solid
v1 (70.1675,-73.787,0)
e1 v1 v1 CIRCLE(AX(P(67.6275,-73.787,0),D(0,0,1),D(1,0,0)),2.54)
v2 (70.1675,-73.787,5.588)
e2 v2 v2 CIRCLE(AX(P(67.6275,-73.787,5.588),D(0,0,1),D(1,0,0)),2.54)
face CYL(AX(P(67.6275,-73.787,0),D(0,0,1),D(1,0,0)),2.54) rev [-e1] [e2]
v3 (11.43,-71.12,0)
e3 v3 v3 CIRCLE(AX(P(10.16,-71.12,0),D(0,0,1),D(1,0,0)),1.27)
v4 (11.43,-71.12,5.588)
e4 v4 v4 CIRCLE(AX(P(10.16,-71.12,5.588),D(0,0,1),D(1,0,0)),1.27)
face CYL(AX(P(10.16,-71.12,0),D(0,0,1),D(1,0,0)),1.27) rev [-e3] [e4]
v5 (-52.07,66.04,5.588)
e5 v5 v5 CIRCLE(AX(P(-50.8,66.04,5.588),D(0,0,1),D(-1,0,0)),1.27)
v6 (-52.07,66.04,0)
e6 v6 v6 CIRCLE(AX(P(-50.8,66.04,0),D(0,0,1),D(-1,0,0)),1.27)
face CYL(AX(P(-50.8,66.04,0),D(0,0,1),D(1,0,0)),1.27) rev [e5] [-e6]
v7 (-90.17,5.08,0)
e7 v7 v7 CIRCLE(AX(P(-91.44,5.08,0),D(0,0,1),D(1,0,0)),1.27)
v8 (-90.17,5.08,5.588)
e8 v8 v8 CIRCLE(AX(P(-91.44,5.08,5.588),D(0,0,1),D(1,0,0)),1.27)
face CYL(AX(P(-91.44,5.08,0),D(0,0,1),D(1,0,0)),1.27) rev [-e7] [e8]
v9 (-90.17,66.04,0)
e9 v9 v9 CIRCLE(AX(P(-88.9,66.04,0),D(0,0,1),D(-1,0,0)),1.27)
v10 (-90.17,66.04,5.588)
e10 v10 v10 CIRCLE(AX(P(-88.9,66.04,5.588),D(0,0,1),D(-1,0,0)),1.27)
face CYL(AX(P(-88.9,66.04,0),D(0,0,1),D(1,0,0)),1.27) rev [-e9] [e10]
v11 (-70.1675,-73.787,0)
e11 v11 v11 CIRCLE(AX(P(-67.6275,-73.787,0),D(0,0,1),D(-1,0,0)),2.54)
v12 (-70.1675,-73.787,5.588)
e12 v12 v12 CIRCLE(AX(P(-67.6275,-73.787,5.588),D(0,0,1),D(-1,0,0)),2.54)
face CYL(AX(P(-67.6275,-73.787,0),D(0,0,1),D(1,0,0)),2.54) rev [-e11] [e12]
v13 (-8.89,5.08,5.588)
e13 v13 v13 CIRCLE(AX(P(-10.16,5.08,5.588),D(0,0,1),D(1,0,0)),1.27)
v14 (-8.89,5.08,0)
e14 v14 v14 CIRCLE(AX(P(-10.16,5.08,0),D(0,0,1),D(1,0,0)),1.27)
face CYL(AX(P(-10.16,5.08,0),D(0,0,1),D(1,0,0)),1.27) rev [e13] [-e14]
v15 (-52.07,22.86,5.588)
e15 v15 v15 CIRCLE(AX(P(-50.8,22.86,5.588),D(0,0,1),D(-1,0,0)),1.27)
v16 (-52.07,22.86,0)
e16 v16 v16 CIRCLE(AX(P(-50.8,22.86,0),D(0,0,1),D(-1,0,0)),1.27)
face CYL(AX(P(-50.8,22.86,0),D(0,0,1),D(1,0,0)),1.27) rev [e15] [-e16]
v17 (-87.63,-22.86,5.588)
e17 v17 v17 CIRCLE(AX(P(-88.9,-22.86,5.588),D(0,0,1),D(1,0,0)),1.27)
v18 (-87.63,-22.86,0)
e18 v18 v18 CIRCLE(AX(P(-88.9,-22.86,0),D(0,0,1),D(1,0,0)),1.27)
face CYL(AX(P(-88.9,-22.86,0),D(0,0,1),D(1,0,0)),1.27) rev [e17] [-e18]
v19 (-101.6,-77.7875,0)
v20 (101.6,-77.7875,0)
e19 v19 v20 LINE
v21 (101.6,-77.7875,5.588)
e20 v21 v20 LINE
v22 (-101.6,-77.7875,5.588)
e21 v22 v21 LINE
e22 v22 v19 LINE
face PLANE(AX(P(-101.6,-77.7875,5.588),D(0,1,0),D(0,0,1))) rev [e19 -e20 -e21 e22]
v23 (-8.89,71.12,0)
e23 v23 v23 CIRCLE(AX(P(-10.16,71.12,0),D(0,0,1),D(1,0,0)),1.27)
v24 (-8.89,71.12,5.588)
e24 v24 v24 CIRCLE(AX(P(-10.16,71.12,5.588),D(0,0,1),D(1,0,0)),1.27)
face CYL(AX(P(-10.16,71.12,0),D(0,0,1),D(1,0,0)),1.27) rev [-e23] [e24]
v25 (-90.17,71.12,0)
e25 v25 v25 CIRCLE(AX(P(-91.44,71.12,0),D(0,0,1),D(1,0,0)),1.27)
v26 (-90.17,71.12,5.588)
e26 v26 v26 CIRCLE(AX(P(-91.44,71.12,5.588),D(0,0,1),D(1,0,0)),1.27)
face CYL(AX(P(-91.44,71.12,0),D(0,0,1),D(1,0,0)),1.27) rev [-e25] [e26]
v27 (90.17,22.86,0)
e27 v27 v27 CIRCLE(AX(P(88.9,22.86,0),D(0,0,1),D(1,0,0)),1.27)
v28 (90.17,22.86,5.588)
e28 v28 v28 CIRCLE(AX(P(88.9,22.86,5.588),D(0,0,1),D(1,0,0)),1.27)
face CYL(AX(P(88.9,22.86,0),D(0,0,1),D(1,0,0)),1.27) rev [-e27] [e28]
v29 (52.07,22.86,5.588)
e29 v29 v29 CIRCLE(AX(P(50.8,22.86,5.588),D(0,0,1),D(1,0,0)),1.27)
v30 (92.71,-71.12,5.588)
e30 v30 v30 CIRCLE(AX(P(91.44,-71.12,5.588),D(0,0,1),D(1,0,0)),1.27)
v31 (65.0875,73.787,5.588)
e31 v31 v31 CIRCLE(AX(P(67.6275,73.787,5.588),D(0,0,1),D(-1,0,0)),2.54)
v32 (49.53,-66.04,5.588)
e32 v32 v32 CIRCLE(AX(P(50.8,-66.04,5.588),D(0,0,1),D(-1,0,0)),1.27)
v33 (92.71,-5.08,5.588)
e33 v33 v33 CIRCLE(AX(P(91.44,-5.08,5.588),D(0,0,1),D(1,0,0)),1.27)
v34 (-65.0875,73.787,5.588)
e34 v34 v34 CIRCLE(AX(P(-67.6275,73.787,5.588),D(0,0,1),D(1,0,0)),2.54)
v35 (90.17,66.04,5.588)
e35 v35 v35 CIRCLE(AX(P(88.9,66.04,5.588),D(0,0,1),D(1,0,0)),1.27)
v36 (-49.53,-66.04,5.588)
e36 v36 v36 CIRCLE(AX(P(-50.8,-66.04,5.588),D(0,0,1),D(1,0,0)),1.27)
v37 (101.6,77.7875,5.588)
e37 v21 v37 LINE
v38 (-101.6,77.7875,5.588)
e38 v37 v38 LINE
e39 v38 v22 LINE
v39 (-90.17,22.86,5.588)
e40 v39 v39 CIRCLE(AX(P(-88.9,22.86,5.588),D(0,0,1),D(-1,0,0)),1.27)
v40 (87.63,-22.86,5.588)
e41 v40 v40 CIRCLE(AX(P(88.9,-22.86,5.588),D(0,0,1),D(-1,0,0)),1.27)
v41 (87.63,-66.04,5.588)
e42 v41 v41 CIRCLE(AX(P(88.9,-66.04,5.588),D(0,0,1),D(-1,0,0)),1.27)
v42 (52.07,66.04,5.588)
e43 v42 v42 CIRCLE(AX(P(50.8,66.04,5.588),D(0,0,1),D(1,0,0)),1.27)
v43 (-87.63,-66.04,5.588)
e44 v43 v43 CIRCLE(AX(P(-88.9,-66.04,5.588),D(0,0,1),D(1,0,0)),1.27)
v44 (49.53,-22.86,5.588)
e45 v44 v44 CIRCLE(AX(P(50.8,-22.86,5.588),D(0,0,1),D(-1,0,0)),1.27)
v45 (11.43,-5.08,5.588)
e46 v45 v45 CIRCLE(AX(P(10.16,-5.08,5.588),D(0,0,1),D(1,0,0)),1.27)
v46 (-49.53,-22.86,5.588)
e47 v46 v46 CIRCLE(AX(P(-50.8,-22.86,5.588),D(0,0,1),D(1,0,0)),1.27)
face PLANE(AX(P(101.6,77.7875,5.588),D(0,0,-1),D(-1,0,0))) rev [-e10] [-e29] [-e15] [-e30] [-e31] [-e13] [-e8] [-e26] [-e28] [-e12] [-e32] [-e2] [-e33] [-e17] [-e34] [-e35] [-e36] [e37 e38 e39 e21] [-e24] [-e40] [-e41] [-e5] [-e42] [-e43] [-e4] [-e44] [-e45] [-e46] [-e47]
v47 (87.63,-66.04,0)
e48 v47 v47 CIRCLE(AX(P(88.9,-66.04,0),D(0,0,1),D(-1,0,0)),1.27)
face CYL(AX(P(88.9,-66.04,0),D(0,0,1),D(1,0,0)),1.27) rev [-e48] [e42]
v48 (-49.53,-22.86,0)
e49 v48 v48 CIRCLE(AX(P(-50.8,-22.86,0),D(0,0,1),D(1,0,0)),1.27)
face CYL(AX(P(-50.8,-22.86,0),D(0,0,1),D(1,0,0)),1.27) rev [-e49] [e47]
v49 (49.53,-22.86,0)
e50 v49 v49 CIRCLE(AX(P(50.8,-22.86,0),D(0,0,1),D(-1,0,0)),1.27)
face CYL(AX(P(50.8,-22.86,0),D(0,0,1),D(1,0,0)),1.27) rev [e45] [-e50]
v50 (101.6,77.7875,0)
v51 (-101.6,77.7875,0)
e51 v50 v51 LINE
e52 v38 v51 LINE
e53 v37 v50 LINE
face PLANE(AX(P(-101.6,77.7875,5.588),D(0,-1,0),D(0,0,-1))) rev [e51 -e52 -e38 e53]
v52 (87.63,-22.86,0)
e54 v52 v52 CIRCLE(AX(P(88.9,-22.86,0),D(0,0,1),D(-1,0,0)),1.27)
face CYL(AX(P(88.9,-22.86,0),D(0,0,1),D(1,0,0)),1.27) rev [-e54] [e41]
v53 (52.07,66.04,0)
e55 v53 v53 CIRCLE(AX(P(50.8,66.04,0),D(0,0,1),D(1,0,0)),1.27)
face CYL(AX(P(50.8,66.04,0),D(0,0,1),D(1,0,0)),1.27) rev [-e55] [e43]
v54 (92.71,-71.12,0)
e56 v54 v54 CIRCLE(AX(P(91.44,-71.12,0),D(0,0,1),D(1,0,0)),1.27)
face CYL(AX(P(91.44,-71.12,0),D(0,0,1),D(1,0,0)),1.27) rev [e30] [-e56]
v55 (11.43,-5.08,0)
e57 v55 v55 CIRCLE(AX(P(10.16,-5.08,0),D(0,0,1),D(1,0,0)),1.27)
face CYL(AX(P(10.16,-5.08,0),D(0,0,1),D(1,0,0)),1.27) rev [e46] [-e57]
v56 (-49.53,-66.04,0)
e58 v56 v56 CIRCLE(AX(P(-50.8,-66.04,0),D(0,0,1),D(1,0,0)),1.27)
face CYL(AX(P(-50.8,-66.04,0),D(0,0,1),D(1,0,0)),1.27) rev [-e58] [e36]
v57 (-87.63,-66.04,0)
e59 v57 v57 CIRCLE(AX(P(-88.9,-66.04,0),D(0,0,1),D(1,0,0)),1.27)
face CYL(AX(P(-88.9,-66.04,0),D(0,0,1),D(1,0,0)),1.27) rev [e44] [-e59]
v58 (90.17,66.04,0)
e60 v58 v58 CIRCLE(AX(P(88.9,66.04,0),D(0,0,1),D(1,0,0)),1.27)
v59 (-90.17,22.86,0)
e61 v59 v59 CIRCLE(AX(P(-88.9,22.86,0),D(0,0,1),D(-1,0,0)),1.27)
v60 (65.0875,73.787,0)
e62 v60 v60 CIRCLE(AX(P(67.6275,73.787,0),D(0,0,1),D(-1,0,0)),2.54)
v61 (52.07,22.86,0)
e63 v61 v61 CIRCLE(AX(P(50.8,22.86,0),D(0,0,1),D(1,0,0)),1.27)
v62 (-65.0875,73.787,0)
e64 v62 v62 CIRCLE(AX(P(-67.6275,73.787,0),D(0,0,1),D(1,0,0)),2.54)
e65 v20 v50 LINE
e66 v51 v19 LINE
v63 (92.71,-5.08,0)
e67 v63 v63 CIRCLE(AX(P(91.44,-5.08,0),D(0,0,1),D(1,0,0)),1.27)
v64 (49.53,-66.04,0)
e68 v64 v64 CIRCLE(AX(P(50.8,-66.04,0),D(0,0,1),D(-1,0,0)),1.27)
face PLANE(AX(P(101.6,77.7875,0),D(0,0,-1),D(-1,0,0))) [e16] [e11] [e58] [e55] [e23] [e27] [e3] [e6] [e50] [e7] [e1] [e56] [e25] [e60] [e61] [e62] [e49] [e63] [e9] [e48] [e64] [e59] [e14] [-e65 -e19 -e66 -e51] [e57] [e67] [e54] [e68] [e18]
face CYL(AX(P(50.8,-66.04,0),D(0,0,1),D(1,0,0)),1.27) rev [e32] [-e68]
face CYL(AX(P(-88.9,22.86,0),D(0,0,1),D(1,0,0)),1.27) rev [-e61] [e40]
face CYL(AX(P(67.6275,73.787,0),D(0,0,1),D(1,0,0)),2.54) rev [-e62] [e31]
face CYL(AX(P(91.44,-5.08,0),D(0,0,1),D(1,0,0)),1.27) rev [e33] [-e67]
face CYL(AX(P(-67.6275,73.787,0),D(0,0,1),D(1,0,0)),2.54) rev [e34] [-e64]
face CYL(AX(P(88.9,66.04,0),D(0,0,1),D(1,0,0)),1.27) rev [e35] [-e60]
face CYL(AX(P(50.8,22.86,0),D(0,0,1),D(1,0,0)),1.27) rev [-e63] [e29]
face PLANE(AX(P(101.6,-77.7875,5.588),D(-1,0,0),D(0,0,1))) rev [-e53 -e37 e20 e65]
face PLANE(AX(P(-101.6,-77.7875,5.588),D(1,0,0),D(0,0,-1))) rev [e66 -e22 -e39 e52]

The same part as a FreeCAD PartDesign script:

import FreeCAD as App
import Part
import Sketcher
from FreeCAD import Vector
Q = App.Units.Quantity


def add_polygon(sketch, points):
    """Adds a closed chain of lines whose ends are joined by coincident constraints."""
    first, n = sketch.GeometryCount, len(points)
    for a, b in zip(points, points[1:] + points[:1]):
        sketch.addGeometry(Part.LineSegment(App.Vector(*a, 0), App.Vector(*b, 0)), False)
    for i in range(n):
        sketch.addConstraint(Sketcher.Constraint("Coincident", first + i, 2, first + (i + 1) % n, 1))

doc = App.newDocument("Part")
body = doc.addObject("PartDesign::Body", "Body")

sketch1 = body.newObject("Sketcher::SketchObject", "Sketch")
sketch1.AttachmentSupport = (doc.getObject("XY_Plane"), [""])
sketch1.MapMode = "FlatFace"
add_polygon(sketch1, [(-102, 78), (-102, -78), (102, -78), (102, 78)])
sketch1.addConstraint(Sketcher.Constraint("Vertical", 0))
sketch1.addConstraint(Sketcher.Constraint("Horizontal", 1))
sketch1.addConstraint(Sketcher.Constraint("Vertical", 2))
sketch1.addConstraint(Sketcher.Constraint("Horizontal", 3))
sketch1.addConstraint(Sketcher.Constraint("Symmetric", 0, 2, 2, 2, -1, 1))
sketch1.addConstraint(Sketcher.Constraint("DistanceX", 1, 1, 1, 2, Q("8 in")))
sketch1.addConstraint(Sketcher.Constraint("DistanceY", 0, 2, 0, 1, Q("6.125 in")))
pad1 = body.newObject("PartDesign::Pad", "Pad")
pad1.Profile = sketch1
pad1.Length = Q("0.22 in")

sketch2 = body.newObject("Sketcher::SketchObject", "Sketch001")
sketch2.AttachmentSupport = (doc.getObject("XY_Plane"), [""])
sketch2.MapMode = "FlatFace"
sketch2.AttachmentOffset = App.Placement(Vector(0, 0, 0.22 * 25.4), App.Rotation())
sketch2.addGeometry(Part.Circle(Vector(-67.6, 73.8, 0), Vector(0, 0, 1), 2.5), False)
sketch2.addGeometry(Part.Circle(Vector(67.6, 73.8, 0), Vector(0, 0, 1), 2.5), False)
sketch2.addGeometry(Part.Circle(Vector(67.6, -73.8, 0), Vector(0, 0, 1), 2.5), False)
sketch2.addGeometry(Part.Circle(Vector(-67.6, -73.8, 0), Vector(0, 0, 1), 2.5), False)
sketch2.addConstraint(Sketcher.Constraint("Equal", 0, 1))
sketch2.addConstraint(Sketcher.Constraint("Equal", 1, 2))
sketch2.addConstraint(Sketcher.Constraint("Equal", 2, 3))
sketch2.addConstraint(Sketcher.Constraint("Symmetric", 0, 3, 2, 3, -1, 1))
sketch2.addConstraint(Sketcher.Constraint("Symmetric", 1, 3, 3, 3, -1, 1))
sketch2.addConstraint(Sketcher.Constraint("Symmetric", 0, 3, 1, 3, -2))
sketch2.addConstraint(Sketcher.Constraint("Diameter", 0, Q("0.2 in")))
sketch2.addConstraint(Sketcher.Constraint("DistanceY", 2, 3, 1, 3, Q("5.81 in")))
sketch2.addConstraint(Sketcher.Constraint("DistanceX", 0, 3, 1, 3, Q("5.325 in")))
pocket1 = body.newObject("PartDesign::Pocket", "Pocket")
pocket1.Profile = sketch2
pocket1.Type = "ThroughAll"

sketch3 = body.newObject("Sketcher::SketchObject", "Sketch002")
sketch3.AttachmentSupport = (doc.getObject("XY_Plane"), [""])
sketch3.MapMode = "FlatFace"
sketch3.AttachmentOffset = App.Placement(Vector(0, 0, 0.22 * 25.4), App.Rotation())
sketch3.addGeometry(Part.Circle(Vector(-91.4, 71.1, 0), Vector(0, 0, 1), 1.3), False)
sketch3.addGeometry(Part.Circle(Vector(-10.2, 71.1, 0), Vector(0, 0, 1), 1.3), False)
sketch3.addGeometry(Part.Circle(Vector(-10.2, 5.1, 0), Vector(0, 0, 1), 1.3), False)
sketch3.addGeometry(Part.Circle(Vector(-91.4, 5.1, 0), Vector(0, 0, 1), 1.3), False)
sketch3.addGeometry(Part.Circle(Vector(10.2, -5.1, 0), Vector(0, 0, 1), 1.3), False)
sketch3.addGeometry(Part.Circle(Vector(91.4, -71.1, 0), Vector(0, 0, 1), 1.3), False)
sketch3.addGeometry(Part.Circle(Vector(91.4, -5.1, 0), Vector(0, 0, 1), 1.3), False)
sketch3.addGeometry(Part.Circle(Vector(10.2, -71.1, 0), Vector(0, 0, 1), 1.3), False)
sketch3.addConstraint(Sketcher.Constraint("Equal", 0, 1))
sketch3.addConstraint(Sketcher.Constraint("Equal", 1, 2))
sketch3.addConstraint(Sketcher.Constraint("Equal", 2, 3))
sketch3.addConstraint(Sketcher.Constraint("Equal", 3, 4))
sketch3.addConstraint(Sketcher.Constraint("Equal", 4, 5))
sketch3.addConstraint(Sketcher.Constraint("Equal", 5, 6))
sketch3.addConstraint(Sketcher.Constraint("Equal", 6, 7))
sketch3.addConstraint(Sketcher.Constraint("Symmetric", 2, 3, 4, 3, -1, 1))
sketch3.addConstraint(Sketcher.Constraint("Symmetric", 0, 3, 5, 3, -1, 1))
sketch3.addConstraint(Sketcher.Constraint("Symmetric", 3, 3, 6, 3, -1, 1))
sketch3.addConstraint(Sketcher.Constraint("Symmetric", 1, 3, 7, 3, -1, 1))
sketch3.addConstraint(Sketcher.Constraint("Horizontal", 0, 3, 1, 3))
sketch3.addConstraint(Sketcher.Constraint("Horizontal", 2, 3, 3, 3))
sketch3.addConstraint(Sketcher.Constraint("Vertical", 1, 3, 2, 3))
sketch3.addConstraint(Sketcher.Constraint("Vertical", 0, 3, 3, 3))
sketch3.addConstraint(Sketcher.Constraint("Diameter", 0, Q("0.1 in")))
sketch3.addConstraint(Sketcher.Constraint("DistanceY", 4, 3, 1, 3, Q("3 in")))
sketch3.addConstraint(Sketcher.Constraint("DistanceX", 3, 3, 4, 3, Q("4 in")))
sketch3.addConstraint(Sketcher.Constraint("DistanceX", 0, 3, -1, 1, Q("3.6 in")))
sketch3.addConstraint(Sketcher.Constraint("DistanceY", -1, 1, 0, 3, Q("2.8 in")))
pocket2 = body.newObject("PartDesign::Pocket", "Pocket001")
pocket2.Profile = sketch3
pocket2.Type = "ThroughAll"

sketch4 = body.newObject("Sketcher::SketchObject", "Sketch003")
sketch4.AttachmentSupport = (doc.getObject("XY_Plane"), [""])
sketch4.MapMode = "FlatFace"
sketch4.AttachmentOffset = App.Placement(Vector(0, 0, 0.22 * 25.4), App.Rotation())
sketch4.addGeometry(Part.Circle(Vector(50.8, 22.9, 0), Vector(0, 0, 1), 1.3), False)
sketch4.addGeometry(Part.Circle(Vector(50.8, 66, 0), Vector(0, 0, 1), 1.3), False)
sketch4.addGeometry(Part.Circle(Vector(88.9, 66, 0), Vector(0, 0, 1), 1.3), False)
sketch4.addGeometry(Part.Circle(Vector(-88.9, 22.9, 0), Vector(0, 0, 1), 1.3), False)
sketch4.addGeometry(Part.Circle(Vector(-88.9, 66, 0), Vector(0, 0, 1), 1.3), False)
sketch4.addGeometry(Part.Circle(Vector(-50.8, 66, 0), Vector(0, 0, 1), 1.3), False)
sketch4.addGeometry(Part.Circle(Vector(-50.8, 22.9, 0), Vector(0, 0, 1), 1.3), False)
sketch4.addGeometry(Part.Circle(Vector(88.9, -22.9, 0), Vector(0, 0, 1), 1.3), False)
sketch4.addGeometry(Part.Circle(Vector(-50.8, -22.9, 0), Vector(0, 0, 1), 1.3), False)
sketch4.addGeometry(Part.Circle(Vector(-50.8, -66, 0), Vector(0, 0, 1), 1.3), False)
sketch4.addGeometry(Part.Circle(Vector(-88.9, -66, 0), Vector(0, 0, 1), 1.3), False)
sketch4.addGeometry(Part.Circle(Vector(-88.9, -22.9, 0), Vector(0, 0, 1), 1.3), False)
sketch4.addGeometry(Part.Circle(Vector(88.9, 22.9, 0), Vector(0, 0, 1), 1.3), False)
sketch4.addGeometry(Part.Circle(Vector(88.9, -66, 0), Vector(0, 0, 1), 1.3), False)
sketch4.addGeometry(Part.Circle(Vector(50.8, -66, 0), Vector(0, 0, 1), 1.3), False)
sketch4.addGeometry(Part.Circle(Vector(50.8, -22.9, 0), Vector(0, 0, 1), 1.3), False)
sketch4.addConstraint(Sketcher.Constraint("Equal", 0, 1))
sketch4.addConstraint(Sketcher.Constraint("Equal", 1, 2))
sketch4.addConstraint(Sketcher.Constraint("Equal", 2, 3))
sketch4.addConstraint(Sketcher.Constraint("Equal", 3, 4))
sketch4.addConstraint(Sketcher.Constraint("Equal", 4, 5))
sketch4.addConstraint(Sketcher.Constraint("Equal", 5, 6))
sketch4.addConstraint(Sketcher.Constraint("Equal", 6, 7))
sketch4.addConstraint(Sketcher.Constraint("Equal", 7, 8))
sketch4.addConstraint(Sketcher.Constraint("Equal", 8, 9))
sketch4.addConstraint(Sketcher.Constraint("Equal", 9, 10))
sketch4.addConstraint(Sketcher.Constraint("Equal", 10, 11))
sketch4.addConstraint(Sketcher.Constraint("Equal", 11, 12))
sketch4.addConstraint(Sketcher.Constraint("Equal", 12, 13))
sketch4.addConstraint(Sketcher.Constraint("Equal", 13, 14))
sketch4.addConstraint(Sketcher.Constraint("Equal", 14, 15))
sketch4.addConstraint(Sketcher.Constraint("Symmetric", 3, 3, 7, 3, -1, 1))
sketch4.addConstraint(Sketcher.Constraint("Symmetric", 0, 3, 8, 3, -1, 1))
sketch4.addConstraint(Sketcher.Constraint("Symmetric", 1, 3, 9, 3, -1, 1))
sketch4.addConstraint(Sketcher.Constraint("Symmetric", 2, 3, 10, 3, -1, 1))
sketch4.addConstraint(Sketcher.Constraint("Symmetric", 11, 3, 12, 3, -1, 1))
sketch4.addConstraint(Sketcher.Constraint("Symmetric", 4, 3, 13, 3, -1, 1))
sketch4.addConstraint(Sketcher.Constraint("Symmetric", 5, 3, 14, 3, -1, 1))
sketch4.addConstraint(Sketcher.Constraint("Symmetric", 6, 3, 15, 3, -1, 1))
sketch4.addConstraint(Sketcher.Constraint("Symmetric", 2, 3, 4, 3, -2))
sketch4.addConstraint(Sketcher.Constraint("Symmetric", 1, 3, 5, 3, -2))
sketch4.addConstraint(Sketcher.Constraint("Symmetric", 0, 3, 6, 3, -2))
sketch4.addConstraint(Sketcher.Constraint("Symmetric", 7, 3, 11, 3, -2))
sketch4.addConstraint(Sketcher.Constraint("Horizontal", 1, 3, 2, 3))
sketch4.addConstraint(Sketcher.Constraint("Horizontal", 0, 3, 3, 3))
sketch4.addConstraint(Sketcher.Constraint("Vertical", 0, 3, 1, 3))
sketch4.addConstraint(Sketcher.Constraint("Vertical", 3, 3, 4, 3))
sketch4.addConstraint(Sketcher.Constraint("Diameter", 0, Q("0.1 in")))
sketch4.addConstraint(Sketcher.Constraint("DistanceX", -1, 1, 0, 3, Q("2 in")))
sketch4.addConstraint(Sketcher.Constraint("DistanceX", 3, 3, 2, 3, Q("7 in")))
sketch4.addConstraint(Sketcher.Constraint("DistanceY", -1, 1, 0, 3, Q("0.9 in")))
sketch4.addConstraint(Sketcher.Constraint("DistanceY", -1, 1, 1, 3, Q("2.6 in")))
pocket3 = body.newObject("PartDesign::Pocket", "Pocket002")
pocket3.Profile = sketch4
pocket3.Type = "ThroughAll"

doc.recompute()
